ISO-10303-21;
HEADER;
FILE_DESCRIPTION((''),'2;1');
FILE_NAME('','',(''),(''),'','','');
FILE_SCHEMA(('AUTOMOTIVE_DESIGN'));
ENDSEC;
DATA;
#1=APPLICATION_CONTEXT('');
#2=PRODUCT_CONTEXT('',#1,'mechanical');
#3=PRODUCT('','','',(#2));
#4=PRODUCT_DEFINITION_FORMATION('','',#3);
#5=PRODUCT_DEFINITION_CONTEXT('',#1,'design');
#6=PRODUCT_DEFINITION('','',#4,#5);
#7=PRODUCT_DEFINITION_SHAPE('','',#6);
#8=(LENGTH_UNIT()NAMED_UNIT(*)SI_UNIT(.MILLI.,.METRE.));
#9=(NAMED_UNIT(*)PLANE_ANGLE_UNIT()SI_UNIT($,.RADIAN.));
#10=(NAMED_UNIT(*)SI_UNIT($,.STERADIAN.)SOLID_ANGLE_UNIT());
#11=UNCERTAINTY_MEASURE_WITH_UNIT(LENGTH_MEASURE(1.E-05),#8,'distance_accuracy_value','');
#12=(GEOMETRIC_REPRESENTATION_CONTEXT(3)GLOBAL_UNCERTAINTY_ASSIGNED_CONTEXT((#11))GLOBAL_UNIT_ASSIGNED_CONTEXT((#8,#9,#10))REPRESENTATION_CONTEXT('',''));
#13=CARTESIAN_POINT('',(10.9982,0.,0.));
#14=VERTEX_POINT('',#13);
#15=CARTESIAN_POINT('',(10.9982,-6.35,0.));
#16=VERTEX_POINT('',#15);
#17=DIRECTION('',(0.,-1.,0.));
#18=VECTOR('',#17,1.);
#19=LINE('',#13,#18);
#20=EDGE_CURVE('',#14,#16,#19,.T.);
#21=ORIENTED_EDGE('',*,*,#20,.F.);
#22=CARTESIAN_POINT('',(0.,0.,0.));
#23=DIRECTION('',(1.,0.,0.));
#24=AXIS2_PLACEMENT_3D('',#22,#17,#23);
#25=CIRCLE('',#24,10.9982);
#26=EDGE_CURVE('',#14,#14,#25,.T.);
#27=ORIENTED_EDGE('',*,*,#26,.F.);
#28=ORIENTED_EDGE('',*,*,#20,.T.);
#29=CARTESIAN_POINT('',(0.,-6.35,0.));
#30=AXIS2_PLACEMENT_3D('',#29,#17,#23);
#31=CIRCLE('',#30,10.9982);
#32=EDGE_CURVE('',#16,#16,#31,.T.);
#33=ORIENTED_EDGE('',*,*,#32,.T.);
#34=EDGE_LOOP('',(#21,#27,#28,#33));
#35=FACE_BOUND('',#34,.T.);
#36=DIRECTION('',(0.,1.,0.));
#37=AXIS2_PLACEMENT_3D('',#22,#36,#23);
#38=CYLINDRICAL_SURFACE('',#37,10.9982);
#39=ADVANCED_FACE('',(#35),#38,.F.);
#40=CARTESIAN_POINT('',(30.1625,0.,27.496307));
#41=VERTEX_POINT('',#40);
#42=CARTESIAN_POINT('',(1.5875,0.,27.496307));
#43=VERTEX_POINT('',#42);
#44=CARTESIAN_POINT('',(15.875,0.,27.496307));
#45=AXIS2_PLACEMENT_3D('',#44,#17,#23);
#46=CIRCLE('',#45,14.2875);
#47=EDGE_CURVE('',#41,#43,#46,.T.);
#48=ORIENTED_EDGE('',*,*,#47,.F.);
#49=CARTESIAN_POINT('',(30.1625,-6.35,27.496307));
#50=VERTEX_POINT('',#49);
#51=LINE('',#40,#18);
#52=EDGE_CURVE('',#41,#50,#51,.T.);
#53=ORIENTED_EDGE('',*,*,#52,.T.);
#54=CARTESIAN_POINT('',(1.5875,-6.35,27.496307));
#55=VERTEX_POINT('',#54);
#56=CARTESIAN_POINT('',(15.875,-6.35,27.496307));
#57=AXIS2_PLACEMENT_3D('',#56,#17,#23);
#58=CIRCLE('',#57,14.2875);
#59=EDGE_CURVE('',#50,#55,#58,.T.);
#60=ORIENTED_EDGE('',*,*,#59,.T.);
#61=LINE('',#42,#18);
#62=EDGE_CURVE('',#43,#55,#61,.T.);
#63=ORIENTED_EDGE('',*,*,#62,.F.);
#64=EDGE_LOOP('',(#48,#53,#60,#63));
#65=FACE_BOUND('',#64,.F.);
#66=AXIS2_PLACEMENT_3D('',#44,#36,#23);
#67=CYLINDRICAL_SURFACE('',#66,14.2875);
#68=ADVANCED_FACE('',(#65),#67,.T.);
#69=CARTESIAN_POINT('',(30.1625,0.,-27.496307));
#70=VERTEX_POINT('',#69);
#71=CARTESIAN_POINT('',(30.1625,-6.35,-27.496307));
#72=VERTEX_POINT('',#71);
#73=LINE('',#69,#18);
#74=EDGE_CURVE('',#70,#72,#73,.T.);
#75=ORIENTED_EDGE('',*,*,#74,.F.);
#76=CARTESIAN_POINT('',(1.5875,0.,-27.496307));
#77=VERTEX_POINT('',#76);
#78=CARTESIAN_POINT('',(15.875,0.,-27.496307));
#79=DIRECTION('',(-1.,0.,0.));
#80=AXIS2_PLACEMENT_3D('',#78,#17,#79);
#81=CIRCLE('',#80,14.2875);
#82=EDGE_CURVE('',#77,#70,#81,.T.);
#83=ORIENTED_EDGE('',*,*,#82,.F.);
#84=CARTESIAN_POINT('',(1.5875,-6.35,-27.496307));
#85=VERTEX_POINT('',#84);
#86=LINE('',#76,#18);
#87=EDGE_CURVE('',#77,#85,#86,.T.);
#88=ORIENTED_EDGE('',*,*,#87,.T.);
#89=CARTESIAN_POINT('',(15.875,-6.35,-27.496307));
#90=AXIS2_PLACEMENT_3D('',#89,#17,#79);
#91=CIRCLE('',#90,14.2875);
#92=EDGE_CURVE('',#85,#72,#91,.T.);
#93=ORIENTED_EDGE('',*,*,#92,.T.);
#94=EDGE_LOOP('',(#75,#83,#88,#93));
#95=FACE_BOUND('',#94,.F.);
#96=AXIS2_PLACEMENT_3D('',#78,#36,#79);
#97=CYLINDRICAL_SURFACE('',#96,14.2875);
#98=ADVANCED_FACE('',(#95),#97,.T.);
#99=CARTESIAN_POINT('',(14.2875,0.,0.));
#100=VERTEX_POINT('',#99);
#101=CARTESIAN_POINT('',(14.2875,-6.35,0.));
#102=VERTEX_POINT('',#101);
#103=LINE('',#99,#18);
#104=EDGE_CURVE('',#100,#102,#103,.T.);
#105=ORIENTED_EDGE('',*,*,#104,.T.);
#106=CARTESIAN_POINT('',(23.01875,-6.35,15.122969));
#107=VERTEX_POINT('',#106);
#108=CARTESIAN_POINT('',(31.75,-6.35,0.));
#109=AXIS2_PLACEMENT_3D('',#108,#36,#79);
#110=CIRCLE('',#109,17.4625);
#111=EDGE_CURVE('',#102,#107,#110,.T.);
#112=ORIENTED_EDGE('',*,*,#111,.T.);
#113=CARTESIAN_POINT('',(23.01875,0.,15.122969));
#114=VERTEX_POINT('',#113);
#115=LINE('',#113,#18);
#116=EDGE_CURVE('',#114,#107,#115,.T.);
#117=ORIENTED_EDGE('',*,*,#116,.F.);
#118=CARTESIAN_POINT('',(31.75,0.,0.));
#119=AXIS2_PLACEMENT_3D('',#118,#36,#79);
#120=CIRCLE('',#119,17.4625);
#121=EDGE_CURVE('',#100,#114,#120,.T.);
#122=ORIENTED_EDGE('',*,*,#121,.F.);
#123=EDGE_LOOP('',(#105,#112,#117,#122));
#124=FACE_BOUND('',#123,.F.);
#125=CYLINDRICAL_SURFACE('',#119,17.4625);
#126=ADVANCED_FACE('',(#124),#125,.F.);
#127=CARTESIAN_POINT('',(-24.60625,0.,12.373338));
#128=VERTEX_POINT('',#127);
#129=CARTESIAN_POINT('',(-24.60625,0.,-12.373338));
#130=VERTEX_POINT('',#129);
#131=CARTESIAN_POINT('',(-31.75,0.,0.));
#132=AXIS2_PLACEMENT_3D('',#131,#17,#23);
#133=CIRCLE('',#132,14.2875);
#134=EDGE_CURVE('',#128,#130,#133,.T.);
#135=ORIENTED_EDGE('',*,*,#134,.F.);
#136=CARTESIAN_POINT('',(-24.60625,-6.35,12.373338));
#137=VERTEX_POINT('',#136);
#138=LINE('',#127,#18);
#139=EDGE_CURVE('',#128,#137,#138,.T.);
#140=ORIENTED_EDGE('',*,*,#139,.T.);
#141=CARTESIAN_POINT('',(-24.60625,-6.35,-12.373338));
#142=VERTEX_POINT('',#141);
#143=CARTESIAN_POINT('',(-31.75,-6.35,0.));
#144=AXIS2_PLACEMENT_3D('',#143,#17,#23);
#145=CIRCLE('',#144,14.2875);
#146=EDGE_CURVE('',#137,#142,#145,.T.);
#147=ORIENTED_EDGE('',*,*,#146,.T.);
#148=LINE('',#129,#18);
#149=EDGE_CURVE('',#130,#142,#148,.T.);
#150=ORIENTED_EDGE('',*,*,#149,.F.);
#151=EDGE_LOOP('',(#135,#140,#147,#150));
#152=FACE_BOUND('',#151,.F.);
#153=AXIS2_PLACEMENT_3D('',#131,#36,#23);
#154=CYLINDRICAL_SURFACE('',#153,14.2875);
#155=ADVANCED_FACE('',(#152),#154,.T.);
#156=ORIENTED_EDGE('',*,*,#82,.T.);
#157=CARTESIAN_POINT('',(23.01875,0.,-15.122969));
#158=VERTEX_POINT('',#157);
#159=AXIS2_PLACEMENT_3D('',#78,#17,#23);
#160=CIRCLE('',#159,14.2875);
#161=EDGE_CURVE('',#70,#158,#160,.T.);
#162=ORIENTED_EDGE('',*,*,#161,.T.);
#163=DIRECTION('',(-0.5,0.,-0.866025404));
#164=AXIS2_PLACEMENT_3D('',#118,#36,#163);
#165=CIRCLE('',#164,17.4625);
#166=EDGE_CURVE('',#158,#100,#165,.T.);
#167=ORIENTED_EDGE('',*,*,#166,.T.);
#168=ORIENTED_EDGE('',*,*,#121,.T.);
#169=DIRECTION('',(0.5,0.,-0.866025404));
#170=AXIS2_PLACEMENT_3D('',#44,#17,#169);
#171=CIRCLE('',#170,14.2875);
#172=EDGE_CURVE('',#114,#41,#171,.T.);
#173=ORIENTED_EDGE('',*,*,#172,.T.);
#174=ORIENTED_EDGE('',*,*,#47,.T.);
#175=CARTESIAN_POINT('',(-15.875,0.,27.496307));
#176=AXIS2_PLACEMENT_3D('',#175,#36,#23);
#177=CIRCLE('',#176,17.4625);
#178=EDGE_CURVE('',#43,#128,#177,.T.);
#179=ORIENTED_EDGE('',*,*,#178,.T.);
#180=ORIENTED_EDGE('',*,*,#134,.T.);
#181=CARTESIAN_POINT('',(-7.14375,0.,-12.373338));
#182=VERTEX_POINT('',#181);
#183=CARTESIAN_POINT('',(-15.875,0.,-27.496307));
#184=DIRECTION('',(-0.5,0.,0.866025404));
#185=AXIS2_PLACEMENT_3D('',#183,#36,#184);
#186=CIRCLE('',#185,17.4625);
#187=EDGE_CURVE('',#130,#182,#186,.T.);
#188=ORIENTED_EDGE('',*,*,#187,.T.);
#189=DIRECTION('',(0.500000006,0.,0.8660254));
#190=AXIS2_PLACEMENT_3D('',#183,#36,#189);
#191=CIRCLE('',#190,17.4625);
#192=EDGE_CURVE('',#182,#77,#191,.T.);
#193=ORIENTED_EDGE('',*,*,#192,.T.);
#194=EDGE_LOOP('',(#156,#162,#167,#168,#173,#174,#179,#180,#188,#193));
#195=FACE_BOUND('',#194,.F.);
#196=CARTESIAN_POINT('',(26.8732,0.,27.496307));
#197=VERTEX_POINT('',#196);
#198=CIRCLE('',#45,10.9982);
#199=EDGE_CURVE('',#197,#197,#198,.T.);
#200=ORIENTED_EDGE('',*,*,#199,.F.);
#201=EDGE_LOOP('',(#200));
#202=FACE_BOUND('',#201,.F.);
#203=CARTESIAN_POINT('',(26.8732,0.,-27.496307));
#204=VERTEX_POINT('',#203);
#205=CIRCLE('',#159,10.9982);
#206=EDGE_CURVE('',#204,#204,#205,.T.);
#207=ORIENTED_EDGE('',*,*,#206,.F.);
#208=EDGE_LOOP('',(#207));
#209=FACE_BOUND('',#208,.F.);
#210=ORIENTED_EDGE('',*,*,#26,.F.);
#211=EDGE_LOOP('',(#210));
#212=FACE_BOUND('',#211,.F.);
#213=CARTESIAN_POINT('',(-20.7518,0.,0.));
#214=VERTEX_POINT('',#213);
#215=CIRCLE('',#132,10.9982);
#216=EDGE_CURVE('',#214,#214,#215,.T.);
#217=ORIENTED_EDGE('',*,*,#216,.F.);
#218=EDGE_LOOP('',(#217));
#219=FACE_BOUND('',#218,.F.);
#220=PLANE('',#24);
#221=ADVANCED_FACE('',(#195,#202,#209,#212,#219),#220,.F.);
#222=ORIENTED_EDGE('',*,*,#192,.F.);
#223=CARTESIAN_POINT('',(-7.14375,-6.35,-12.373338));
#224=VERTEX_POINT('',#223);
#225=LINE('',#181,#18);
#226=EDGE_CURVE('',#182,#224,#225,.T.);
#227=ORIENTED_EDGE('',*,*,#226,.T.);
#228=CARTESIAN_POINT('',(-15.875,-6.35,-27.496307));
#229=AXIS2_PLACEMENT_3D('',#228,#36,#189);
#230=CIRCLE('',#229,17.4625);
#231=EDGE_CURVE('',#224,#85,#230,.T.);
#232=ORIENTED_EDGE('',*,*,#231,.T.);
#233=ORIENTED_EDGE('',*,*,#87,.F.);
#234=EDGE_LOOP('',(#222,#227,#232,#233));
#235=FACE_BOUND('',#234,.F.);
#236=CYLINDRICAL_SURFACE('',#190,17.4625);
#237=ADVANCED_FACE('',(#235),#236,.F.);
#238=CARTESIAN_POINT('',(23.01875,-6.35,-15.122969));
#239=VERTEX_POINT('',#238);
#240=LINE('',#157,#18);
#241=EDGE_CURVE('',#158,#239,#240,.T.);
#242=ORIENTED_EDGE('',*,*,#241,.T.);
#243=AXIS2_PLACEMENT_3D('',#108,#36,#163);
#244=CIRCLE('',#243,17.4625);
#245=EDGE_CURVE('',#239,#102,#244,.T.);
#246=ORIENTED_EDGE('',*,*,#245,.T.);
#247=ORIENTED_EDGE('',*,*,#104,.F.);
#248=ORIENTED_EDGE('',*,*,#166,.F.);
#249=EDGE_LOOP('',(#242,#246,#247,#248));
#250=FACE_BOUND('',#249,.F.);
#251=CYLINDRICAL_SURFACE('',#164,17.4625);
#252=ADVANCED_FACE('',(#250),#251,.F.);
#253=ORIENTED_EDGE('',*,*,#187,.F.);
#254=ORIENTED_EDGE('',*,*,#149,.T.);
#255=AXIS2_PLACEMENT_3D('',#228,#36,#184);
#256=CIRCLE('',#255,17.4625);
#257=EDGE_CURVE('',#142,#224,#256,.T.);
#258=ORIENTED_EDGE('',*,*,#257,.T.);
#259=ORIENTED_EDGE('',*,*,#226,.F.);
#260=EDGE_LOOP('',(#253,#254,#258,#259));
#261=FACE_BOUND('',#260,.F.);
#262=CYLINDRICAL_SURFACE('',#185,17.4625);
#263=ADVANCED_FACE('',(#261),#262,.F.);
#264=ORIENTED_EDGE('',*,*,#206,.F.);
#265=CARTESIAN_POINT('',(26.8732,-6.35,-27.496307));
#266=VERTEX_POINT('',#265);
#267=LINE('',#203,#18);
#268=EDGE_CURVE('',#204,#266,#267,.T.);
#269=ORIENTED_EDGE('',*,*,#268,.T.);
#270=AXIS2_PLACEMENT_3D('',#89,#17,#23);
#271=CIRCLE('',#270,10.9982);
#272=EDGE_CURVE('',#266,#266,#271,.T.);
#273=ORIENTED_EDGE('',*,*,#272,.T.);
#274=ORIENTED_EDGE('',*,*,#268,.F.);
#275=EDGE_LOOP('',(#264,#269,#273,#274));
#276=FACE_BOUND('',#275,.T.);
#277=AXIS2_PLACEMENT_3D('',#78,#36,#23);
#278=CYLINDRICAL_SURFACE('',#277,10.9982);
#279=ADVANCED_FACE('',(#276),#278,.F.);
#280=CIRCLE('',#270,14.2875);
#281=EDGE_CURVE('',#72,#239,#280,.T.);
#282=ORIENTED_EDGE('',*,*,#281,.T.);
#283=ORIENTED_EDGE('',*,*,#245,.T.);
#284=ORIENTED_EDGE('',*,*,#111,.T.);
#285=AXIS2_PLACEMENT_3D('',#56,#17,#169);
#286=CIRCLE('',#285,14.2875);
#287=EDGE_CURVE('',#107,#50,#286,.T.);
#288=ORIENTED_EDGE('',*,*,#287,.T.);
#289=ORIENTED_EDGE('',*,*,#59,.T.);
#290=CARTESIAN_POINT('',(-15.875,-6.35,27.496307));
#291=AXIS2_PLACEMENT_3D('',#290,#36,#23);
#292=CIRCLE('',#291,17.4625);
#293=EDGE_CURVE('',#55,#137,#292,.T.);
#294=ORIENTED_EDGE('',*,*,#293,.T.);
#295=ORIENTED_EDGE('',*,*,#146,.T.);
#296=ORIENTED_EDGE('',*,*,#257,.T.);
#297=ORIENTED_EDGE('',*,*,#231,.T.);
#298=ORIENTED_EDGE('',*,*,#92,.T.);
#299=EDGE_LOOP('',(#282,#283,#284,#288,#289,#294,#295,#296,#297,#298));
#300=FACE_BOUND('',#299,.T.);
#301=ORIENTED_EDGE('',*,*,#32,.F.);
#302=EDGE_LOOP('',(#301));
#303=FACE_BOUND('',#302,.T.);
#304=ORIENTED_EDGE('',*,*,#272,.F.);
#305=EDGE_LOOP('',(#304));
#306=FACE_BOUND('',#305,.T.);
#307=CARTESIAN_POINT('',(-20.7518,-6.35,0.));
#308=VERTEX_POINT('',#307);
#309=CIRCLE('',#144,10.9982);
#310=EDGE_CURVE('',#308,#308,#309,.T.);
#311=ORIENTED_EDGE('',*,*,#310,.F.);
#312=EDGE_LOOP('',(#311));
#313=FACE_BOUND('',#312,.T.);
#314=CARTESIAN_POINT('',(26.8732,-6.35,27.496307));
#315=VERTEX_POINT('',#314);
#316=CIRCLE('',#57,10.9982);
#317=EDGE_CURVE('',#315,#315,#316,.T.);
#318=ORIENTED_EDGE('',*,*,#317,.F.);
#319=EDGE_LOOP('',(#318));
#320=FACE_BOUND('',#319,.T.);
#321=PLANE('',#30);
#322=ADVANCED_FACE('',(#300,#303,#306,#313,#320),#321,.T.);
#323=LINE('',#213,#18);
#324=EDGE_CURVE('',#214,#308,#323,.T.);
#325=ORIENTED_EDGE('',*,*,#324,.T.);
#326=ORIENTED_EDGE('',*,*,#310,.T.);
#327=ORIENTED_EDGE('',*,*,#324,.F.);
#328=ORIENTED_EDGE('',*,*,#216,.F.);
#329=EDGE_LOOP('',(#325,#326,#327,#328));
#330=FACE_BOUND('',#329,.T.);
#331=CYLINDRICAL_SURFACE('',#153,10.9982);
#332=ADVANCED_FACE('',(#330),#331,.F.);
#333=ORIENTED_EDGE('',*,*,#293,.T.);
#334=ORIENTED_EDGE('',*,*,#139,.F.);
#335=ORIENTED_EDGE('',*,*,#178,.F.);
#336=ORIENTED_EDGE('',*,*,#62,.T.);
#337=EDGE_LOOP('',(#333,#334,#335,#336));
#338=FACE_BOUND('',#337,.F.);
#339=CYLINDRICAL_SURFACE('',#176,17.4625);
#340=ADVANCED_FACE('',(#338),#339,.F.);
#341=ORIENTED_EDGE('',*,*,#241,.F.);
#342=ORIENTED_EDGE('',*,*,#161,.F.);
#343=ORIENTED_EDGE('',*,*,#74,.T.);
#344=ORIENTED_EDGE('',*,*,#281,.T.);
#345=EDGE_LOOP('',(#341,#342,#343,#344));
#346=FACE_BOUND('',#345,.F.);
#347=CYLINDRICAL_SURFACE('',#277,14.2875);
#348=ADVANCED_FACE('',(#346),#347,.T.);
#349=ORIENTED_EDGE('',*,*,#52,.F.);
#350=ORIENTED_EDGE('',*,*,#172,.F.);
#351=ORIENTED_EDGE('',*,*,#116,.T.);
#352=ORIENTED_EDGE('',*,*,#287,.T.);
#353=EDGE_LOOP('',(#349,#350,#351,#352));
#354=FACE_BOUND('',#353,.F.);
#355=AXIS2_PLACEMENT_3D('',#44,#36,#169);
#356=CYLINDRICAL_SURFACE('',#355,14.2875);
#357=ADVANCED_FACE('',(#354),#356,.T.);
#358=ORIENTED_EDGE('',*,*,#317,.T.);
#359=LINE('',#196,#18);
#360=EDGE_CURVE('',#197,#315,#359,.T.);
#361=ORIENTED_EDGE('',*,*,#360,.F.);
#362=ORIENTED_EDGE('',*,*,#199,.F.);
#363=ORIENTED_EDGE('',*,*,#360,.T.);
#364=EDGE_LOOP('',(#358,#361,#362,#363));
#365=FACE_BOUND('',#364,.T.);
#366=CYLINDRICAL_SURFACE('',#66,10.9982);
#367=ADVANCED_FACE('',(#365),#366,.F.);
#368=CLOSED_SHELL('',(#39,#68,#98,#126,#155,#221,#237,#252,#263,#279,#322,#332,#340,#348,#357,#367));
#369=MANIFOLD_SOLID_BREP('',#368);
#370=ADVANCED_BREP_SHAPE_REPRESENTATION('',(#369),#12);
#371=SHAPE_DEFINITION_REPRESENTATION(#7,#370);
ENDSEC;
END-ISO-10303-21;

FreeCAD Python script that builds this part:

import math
import FreeCAD as App
import Part
import Sketcher

V = App.Vector
Q = App.Units.Quantity

doc = App.newDocument("Part")
params = doc.addObject("Spreadsheet::Sheet", "Params")
for row, (alias, value) in enumerate([
    ("sketch1_diameter", "0.866 in"),
    ("sketch1_radius", "0.6875 in"),
    ("sketch1_radius2", "0.5625 in"),
    ("pad1_length", "0.25 in"),
], start=1):
    params.set(f"A{row}", alias)
    params.set(f"B{row}", "=" + value)
    params.setAlias(f"B{row}", alias)

body = doc.addObject("PartDesign::Body", "Body")

# Sketch on XZ plane
sketch1 = body.newObject("Sketcher::SketchObject", "Sketch")
sketch1.AttachmentSupport = (doc.getObject("XZ_Plane"), [""])
sketch1.MapMode = "FlatFace"
sketch1.addGeometry([
    Part.ArcOfCircle(Part.Circle(V(-16, -27, 0), V(0, 0, 1), 17), math.radians(0), math.radians(60)),  # 0
    Part.ArcOfCircle(Part.Circle(V(16, -27, 0), V(0, 0, 1), 14), math.radians(180), math.radians(360)),  # 1
    Part.ArcOfCircle(Part.Circle(V(16, -27, 0), V(0, 0, 1), 14), math.radians(0), math.radians(60)),  # 2
    Part.ArcOfCircle(Part.Circle(V(32, 0, 0), V(0, 0, 1), 17), math.radians(180), math.radians(240)),  # 3
    Part.ArcOfCircle(Part.Circle(V(32, 0, 0), V(0, 0, 1), 17), math.radians(120), math.radians(180)),  # 4
    Part.ArcOfCircle(Part.Circle(V(16, 27, 0), V(0, 0, 1), 14), math.radians(-60), math.radians(0)),  # 5
    Part.ArcOfCircle(Part.Circle(V(16, 27, 0), V(0, 0, 1), 14), math.radians(0), math.radians(180)),  # 6
    Part.ArcOfCircle(Part.Circle(V(-16, 27, 0), V(0, 0, 1), 17), math.radians(-120), math.radians(0)),  # 7
    Part.ArcOfCircle(Part.Circle(V(-32, 0, 0), V(0, 0, 1), 14), math.radians(60), math.radians(300)),  # 8
    Part.ArcOfCircle(Part.Circle(V(-16, -27, 0), V(0, 0, 1), 17), math.radians(60), math.radians(120)),  # 9
    Part.Circle(V(16, -27, 0), V(0, 0, 1), 11),  # 10
    Part.Circle(V(-32, 0, 0), V(0, 0, 1), 11),  # 11
    Part.Circle(V(0, 0, 0), V(0, 0, 1), 11),  # 12
    Part.Circle(V(16, 27, 0), V(0, 0, 1), 11),  # 13
], False)
sketch1.addConstraint([
    Sketcher.Constraint("Tangent", 0, 1, 1, 1),
    Sketcher.Constraint("Tangent", 1, 2, 2, 1),
    Sketcher.Constraint("Tangent", 2, 2, 3, 2),
    Sketcher.Constraint("Tangent", 3, 1, 4, 2),
    Sketcher.Constraint("Tangent", 4, 1, 5, 1),
    Sketcher.Constraint("Tangent", 5, 2, 6, 1),
    Sketcher.Constraint("Tangent", 6, 2, 7, 2),
    Sketcher.Constraint("Tangent", 7, 1, 8, 1),
    Sketcher.Constraint("Tangent", 8, 2, 9, 2),
    Sketcher.Constraint("Tangent", 9, 1, 0, 2),
    Sketcher.Constraint("Coincident", 12, 3, -1, 1),
    Sketcher.Constraint("Coincident", 10, 3, 1, 3),
    Sketcher.Constraint("Coincident", 11, 3, 8, 3),
    Sketcher.Constraint("Coincident", 13, 3, 5, 3),
    Sketcher.Constraint("Equal", 1, 2),
    Sketcher.Constraint("Equal", 0, 3),
    Sketcher.Constraint("Equal", 3, 4),
    Sketcher.Constraint("Equal", 2, 5),
    Sketcher.Constraint("Equal", 5, 6),
    Sketcher.Constraint("Equal", 4, 7),
    Sketcher.Constraint("Equal", 6, 8),
    Sketcher.Constraint("Equal", 7, 9),
    Sketcher.Constraint("Equal", 10, 11),
    Sketcher.Constraint("Equal", 11, 12),
    Sketcher.Constraint("Equal", 12, 13),
    Sketcher.Constraint("Symmetric", 0, 3, 5, 3, -1, 1),
    Sketcher.Constraint("Symmetric", 0, 3, 1, 3, -2),
    Sketcher.Constraint("PointOnObject", 8, 3, -1),
    Sketcher.Constraint("PointOnObject", 3, 1, -1),
    Sketcher.Constraint("Horizontal", 0, 1, 1, 2),
    Sketcher.Constraint("Horizontal", 13, 3, 5, 2),
    Sketcher.Constraint("Horizontal", 8, 2, 9, 1),
    Sketcher.Constraint("Diameter", 10, Q("0.866 in")),
    Sketcher.Constraint("Radius", 0, Q("0.6875 in")),
    Sketcher.Constraint("Radius", 1, Q("0.5625 in")),
    Sketcher.Constraint("DistanceX", -1, 1, 3, 3, Q("1.25 in")),
])
sketch1.setExpression("Constraints[32]", "Params.sketch1_diameter")
sketch1.setExpression("Constraints[33]", "Params.sketch1_radius")
sketch1.setExpression("Constraints[34]", "Params.sketch1_radius2")
pad1 = body.newObject("PartDesign::Pad", "Pad")
pad1.Profile = sketch1
pad1.setExpression("Length", "Params.pad1_length")

doc.recompute()
